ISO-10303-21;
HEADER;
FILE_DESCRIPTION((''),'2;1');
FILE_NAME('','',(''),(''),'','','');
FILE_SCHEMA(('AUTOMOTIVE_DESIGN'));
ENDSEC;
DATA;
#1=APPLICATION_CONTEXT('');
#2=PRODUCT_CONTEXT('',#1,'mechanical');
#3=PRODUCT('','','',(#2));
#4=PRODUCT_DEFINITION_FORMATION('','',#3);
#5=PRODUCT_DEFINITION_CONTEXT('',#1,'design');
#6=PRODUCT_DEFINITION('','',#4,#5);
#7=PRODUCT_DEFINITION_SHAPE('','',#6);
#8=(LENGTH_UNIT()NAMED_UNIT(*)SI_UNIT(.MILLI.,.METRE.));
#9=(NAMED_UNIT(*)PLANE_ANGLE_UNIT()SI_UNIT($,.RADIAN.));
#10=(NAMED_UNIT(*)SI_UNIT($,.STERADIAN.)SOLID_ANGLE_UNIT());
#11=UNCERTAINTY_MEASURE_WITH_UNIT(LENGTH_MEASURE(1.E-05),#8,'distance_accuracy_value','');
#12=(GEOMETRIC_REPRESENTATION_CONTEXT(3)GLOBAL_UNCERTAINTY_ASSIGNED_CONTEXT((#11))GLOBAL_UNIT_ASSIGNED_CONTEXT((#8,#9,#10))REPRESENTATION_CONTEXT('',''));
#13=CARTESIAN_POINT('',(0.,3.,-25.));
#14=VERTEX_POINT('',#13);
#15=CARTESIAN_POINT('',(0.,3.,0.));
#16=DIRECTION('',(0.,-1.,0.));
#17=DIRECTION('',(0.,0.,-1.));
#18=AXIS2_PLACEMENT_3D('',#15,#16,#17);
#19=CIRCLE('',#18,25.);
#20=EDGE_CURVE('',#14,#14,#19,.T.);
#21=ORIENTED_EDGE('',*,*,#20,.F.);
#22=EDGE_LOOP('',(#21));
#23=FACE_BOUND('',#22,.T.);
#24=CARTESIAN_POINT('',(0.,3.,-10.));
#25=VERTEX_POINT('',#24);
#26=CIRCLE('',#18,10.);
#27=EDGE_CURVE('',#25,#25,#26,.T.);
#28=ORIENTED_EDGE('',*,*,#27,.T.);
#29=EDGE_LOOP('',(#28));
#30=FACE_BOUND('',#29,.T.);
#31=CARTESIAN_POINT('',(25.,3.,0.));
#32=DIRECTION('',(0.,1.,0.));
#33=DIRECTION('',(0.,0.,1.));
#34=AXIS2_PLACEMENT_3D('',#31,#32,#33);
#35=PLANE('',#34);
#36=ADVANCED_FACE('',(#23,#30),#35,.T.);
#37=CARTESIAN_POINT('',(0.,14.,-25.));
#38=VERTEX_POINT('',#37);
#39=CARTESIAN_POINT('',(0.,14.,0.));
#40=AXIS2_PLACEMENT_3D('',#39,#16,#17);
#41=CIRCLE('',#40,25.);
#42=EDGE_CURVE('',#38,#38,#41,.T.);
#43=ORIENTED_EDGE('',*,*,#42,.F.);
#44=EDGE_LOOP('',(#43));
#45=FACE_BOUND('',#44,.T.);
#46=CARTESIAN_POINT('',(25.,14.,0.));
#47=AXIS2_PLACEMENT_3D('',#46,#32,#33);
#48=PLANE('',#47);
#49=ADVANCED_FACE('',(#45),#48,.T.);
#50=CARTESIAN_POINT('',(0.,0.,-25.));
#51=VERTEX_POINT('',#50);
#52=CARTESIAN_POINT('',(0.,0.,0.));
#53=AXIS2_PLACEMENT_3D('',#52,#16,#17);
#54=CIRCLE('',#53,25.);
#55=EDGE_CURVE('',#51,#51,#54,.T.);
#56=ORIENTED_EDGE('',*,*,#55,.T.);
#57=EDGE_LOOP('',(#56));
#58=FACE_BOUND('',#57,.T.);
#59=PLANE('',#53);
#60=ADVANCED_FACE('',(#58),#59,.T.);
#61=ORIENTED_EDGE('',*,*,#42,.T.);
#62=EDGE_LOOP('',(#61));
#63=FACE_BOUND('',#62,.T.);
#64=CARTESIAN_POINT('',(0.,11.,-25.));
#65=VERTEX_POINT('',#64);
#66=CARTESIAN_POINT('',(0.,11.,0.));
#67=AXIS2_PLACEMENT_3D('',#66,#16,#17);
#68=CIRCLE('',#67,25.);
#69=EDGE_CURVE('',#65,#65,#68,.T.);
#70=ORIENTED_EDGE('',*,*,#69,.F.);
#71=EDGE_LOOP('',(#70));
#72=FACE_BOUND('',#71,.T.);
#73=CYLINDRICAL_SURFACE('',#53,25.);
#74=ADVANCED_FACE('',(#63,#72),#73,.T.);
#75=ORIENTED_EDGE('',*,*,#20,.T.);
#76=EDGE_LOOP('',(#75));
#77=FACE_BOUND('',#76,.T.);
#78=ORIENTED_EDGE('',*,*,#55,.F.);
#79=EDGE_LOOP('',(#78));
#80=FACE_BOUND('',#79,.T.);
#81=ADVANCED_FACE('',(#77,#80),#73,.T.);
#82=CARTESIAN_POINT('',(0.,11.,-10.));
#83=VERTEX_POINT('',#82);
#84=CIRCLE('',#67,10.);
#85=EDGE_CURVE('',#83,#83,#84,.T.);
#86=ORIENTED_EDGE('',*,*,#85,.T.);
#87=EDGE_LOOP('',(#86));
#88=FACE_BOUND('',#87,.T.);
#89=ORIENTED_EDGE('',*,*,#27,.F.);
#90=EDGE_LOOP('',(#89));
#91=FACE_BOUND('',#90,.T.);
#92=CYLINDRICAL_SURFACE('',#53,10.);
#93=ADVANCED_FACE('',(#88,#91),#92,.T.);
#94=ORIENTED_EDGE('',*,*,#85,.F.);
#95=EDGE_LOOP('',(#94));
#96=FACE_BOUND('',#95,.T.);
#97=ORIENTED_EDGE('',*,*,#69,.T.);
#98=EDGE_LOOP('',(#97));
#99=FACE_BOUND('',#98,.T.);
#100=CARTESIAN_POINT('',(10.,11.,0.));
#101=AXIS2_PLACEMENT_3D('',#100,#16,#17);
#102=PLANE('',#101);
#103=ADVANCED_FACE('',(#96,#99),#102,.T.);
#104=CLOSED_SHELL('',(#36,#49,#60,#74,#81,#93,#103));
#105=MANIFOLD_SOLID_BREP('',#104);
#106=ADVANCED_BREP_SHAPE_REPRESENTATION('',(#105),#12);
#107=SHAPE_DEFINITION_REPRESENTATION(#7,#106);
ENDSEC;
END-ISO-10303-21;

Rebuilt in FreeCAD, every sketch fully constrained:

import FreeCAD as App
import Part
import Sketcher

doc = App.newDocument("Part")
params = doc.addObject("Spreadsheet::Sheet", "Params")
for row, (alias, value) in enumerate([
    ("sketch1_width", "25 mm"),
    ("sketch1_width2", "15 mm"),
    ("sketch1_height", "3 mm"),
    ("sketch1_height2", "8 mm"),
    ("revolution_angle", "360 deg"),
], start=1):
    params.set(f"A{row}", alias)
    params.set(f"B{row}", "=" + value)
    params.setAlias(f"B{row}", alias)

body = doc.addObject("PartDesign::Body", "Body")

# Sketch on XY plane
sketch1 = body.newObject("Sketcher::SketchObject", "Sketch")
sketch1.AttachmentSupport = (doc.getObject("XY_Plane"), [""])
sketch1.MapMode = "FlatFace"
sketch1.addGeometry(Part.LineSegment(App.Vector(0, 0, 0), App.Vector(25, 0, 0)), False)
sketch1.addGeometry(Part.LineSegment(App.Vector(25, 0, 0), App.Vector(25, 3, 0)), False)
sketch1.addGeometry(Part.LineSegment(App.Vector(25, 3, 0), App.Vector(10, 3, 0)), False)
sketch1.addGeometry(Part.LineSegment(App.Vector(10, 3, 0), App.Vector(10, 11, 0)), False)
sketch1.addGeometry(Part.LineSegment(App.Vector(10, 11, 0), App.Vector(25, 11, 0)), False)
sketch1.addGeometry(Part.LineSegment(App.Vector(25, 11, 0), App.Vector(25, 14, 0)), False)
sketch1.addGeometry(Part.LineSegment(App.Vector(25, 14, 0), App.Vector(0, 14, 0)), False)
sketch1.addGeometry(Part.LineSegment(App.Vector(0, 14, 0), App.Vector(0, 0, 0)), False)
sketch1.addConstraint(Sketcher.Constraint("Coincident", 0, 2, 1, 1))
sketch1.addConstraint(Sketcher.Constraint("Coincident", 1, 2, 2, 1))
sketch1.addConstraint(Sketcher.Constraint("Coincident", 2, 2, 3, 1))
sketch1.addConstraint(Sketcher.Constraint("Coincident", 3, 2, 4, 1))
sketch1.addConstraint(Sketcher.Constraint("Coincident", 4, 2, 5, 1))
sketch1.addConstraint(Sketcher.Constraint("Coincident", 5, 2, 6, 1))
sketch1.addConstraint(Sketcher.Constraint("Coincident", 6, 2, 7, 1))
sketch1.addConstraint(Sketcher.Constraint("Coincident", 7, 2, 0, 1))
sketch1.addConstraint(Sketcher.Constraint("Horizontal", 0))
sketch1.addConstraint(Sketcher.Constraint("Vertical", 1))
sketch1.addConstraint(Sketcher.Constraint("Horizontal", 2))
sketch1.addConstraint(Sketcher.Constraint("Vertical", 3))
sketch1.addConstraint(Sketcher.Constraint("Horizontal", 4))
sketch1.addConstraint(Sketcher.Constraint("Vertical", 5))
sketch1.addConstraint(Sketcher.Constraint("Horizontal", 6))
sketch1.addConstraint(Sketcher.Constraint("Vertical", 7))
sketch1.addConstraint(Sketcher.Constraint("Coincident", 7, 2, -1, 1))
sketch1.addConstraint(Sketcher.Constraint("Vertical", 1, 2, 4, 2))
sketch1.addConstraint(Sketcher.Constraint("Equal", 1, 5))
sketch1.addConstraint(Sketcher.Constraint("DistanceX", 0, 1, 0, 2, 25.0))
sketch1.addConstraint(Sketcher.Constraint("DistanceX", 2, 2, 2, 1, 15.0))
sketch1.addConstraint(Sketcher.Constraint("DistanceY", 1, 1, 1, 2, 3.0))
sketch1.addConstraint(Sketcher.Constraint("DistanceY", 3, 1, 3, 2, 8.0))
sketch1.setExpression("Constraints[19]", "Params.sketch1_width")
sketch1.setExpression("Constraints[20]", "Params.sketch1_width2")
sketch1.setExpression("Constraints[21]", "Params.sketch1_height")
sketch1.setExpression("Constraints[22]", "Params.sketch1_height2")
revolution = body.newObject("PartDesign::Revolution", "Revolution")
revolution.Profile = sketch1
revolution.ReferenceAxis = (sketch1, ["V_Axis"])
revolution.setExpression("Angle", "Params.revolution_angle")

doc.recompute()
